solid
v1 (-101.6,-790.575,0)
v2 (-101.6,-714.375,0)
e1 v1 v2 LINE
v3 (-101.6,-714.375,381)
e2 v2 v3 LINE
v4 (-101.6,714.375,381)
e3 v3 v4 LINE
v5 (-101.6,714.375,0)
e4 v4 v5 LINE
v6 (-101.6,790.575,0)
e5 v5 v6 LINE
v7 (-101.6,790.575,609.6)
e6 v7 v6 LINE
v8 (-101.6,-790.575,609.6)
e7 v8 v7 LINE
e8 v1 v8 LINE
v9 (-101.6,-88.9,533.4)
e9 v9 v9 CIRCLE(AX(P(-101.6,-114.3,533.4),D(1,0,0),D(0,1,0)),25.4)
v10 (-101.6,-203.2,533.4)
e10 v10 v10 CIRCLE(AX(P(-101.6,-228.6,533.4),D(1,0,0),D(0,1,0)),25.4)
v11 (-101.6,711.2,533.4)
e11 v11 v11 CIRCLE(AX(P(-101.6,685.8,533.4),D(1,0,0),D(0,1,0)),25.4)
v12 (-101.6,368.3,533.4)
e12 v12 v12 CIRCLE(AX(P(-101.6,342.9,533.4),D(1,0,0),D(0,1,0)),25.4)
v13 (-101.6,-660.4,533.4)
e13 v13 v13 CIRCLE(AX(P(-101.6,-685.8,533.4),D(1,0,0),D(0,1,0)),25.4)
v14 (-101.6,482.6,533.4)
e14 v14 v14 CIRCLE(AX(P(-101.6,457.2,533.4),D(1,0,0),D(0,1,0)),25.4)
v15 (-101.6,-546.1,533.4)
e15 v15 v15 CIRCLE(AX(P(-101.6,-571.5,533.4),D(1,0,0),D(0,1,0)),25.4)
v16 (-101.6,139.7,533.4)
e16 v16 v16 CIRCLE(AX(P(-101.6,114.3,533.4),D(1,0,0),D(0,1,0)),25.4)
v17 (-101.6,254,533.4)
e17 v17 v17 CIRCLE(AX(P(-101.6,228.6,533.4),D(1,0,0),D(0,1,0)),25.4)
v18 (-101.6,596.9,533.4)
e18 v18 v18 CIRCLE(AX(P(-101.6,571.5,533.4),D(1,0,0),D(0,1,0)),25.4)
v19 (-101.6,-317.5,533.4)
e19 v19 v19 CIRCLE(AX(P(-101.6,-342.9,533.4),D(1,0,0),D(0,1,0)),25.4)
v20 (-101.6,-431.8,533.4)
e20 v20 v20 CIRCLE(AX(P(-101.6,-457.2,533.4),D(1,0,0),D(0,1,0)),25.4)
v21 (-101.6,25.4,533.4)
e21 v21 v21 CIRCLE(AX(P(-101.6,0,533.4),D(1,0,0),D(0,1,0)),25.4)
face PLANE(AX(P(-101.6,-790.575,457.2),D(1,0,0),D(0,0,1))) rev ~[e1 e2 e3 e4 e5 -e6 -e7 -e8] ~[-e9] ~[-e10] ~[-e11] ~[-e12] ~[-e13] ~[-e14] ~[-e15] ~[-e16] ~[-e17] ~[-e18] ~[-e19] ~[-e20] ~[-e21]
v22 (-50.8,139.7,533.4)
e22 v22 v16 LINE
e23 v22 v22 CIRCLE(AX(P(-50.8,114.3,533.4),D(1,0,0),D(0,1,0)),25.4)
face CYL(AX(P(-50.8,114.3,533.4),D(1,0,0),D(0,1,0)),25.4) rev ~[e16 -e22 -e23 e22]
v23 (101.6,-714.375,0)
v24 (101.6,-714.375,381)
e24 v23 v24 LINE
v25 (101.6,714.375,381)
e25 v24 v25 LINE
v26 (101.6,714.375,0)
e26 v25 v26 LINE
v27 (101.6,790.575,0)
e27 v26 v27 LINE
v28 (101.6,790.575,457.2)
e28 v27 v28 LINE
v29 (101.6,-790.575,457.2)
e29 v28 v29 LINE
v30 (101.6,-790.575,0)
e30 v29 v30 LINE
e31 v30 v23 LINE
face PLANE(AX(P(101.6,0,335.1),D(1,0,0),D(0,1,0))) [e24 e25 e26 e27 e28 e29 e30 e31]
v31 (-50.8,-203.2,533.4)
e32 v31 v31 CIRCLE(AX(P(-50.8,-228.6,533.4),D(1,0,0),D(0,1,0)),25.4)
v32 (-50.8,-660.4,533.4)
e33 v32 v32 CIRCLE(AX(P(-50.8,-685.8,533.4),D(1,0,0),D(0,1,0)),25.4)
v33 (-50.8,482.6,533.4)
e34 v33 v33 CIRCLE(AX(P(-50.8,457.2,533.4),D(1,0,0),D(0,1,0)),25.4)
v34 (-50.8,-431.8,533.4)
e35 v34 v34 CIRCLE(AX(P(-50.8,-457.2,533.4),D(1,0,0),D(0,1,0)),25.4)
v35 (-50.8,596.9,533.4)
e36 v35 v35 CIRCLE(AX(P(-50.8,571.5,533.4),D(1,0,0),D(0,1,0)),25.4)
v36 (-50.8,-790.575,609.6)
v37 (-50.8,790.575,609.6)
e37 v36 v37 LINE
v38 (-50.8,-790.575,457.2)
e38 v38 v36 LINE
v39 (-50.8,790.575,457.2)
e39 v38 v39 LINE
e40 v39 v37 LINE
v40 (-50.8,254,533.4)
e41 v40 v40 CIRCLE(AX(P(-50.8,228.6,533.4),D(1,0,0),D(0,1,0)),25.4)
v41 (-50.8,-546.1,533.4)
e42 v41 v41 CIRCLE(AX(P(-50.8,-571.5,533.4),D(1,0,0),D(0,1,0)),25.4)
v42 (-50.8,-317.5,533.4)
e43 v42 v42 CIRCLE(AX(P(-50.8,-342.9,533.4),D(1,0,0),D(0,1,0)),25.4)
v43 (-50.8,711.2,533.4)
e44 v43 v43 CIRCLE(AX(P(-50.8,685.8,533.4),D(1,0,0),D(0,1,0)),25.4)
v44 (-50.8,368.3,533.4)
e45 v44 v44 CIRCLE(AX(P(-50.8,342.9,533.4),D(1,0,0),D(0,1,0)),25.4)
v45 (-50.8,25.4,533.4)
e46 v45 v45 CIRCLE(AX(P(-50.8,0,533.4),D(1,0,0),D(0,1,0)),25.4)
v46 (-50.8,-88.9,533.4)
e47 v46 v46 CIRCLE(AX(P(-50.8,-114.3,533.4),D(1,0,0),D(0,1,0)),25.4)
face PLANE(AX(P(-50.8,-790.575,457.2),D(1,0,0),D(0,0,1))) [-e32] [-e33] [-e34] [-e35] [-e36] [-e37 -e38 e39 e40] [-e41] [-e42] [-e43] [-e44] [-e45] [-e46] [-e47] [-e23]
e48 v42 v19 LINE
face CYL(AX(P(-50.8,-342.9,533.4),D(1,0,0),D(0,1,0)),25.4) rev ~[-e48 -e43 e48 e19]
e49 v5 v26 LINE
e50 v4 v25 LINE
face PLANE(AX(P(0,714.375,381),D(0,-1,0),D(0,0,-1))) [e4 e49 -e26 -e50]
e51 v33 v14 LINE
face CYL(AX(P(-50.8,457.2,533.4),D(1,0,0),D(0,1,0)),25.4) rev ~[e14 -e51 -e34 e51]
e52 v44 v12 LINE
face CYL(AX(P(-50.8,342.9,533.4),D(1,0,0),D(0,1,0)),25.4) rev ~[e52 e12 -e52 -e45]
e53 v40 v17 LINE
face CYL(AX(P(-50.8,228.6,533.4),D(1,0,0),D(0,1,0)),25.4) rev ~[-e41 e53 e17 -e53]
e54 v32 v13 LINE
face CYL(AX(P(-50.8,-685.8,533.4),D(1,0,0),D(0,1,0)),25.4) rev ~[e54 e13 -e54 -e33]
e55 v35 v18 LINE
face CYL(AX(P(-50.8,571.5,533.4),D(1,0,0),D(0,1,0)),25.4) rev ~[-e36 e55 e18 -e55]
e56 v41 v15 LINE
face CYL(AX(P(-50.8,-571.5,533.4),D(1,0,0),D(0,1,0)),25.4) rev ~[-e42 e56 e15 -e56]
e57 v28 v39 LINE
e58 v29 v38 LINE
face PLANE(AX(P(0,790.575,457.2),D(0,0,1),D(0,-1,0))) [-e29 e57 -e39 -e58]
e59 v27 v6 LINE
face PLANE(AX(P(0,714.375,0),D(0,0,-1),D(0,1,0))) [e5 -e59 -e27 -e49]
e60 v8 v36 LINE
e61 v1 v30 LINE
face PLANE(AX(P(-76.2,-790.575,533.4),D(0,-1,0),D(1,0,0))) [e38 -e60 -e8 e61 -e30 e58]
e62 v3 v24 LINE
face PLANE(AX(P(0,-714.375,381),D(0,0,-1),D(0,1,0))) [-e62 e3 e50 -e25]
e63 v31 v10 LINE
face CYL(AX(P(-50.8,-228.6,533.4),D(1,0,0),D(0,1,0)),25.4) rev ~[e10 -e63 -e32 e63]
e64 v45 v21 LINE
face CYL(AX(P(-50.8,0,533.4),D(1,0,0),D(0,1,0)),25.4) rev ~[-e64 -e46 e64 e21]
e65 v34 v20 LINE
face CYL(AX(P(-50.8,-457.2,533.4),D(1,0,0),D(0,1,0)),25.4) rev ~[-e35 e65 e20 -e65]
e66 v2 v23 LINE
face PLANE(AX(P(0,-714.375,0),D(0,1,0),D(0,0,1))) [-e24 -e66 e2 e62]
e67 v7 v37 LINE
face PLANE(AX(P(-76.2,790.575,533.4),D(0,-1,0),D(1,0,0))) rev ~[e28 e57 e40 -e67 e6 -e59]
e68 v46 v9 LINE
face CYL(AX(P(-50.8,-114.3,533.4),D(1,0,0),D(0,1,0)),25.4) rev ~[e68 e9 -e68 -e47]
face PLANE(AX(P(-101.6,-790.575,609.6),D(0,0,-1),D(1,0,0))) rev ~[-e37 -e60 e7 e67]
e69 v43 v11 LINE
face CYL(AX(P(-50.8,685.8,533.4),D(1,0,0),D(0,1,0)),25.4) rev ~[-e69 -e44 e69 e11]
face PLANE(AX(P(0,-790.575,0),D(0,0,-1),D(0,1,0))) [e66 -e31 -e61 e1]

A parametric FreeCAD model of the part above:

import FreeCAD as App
import Part
import Sketcher
Q = App.Units.Quantity


def add_polygon(sketch, points):
    """Adds a closed chain of lines whose ends are joined by coincident constraints."""
    first, n = sketch.GeometryCount, len(points)
    for a, b in zip(points, points[1:] + points[:1]):
        sketch.addGeometry(Part.LineSegment(App.Vector(*a, 0), App.Vector(*b, 0)), False)
    for i in range(n):
        sketch.addConstraint(Sketcher.Constraint("Coincident", first + i, 2, first + (i + 1) % n, 1))

doc = App.newDocument("Part")
body = doc.addObject("PartDesign::Body", "Body")

sketch1 = doc.addObject("Sketcher::SketchObject", "Sketch")
body.addObject(sketch1)
sketch1.AttachmentSupport = (doc.YZ_Plane, [""])
sketch1.MapMode = "FlatFace"
add_polygon(sketch1, [(-791, 457), (-791, 0), (-714, 0), (-714, 381), (714, 381), (714, 0), (791, 0), (791, 457)])
sketch1.addConstraint([
    Sketcher.Constraint("Vertical", 0),
    Sketcher.Constraint("Horizontal", 1),
    Sketcher.Constraint("Vertical", 2),
    Sketcher.Constraint("Horizontal", 3),
    Sketcher.Constraint("Vertical", 4),
    Sketcher.Constraint("Horizontal", 5),
    Sketcher.Constraint("Vertical", 6),
    Sketcher.Constraint("Horizontal", 7),
    Sketcher.Constraint("Symmetric", 1, 2, 4, 2, -1, 1),
    Sketcher.Constraint("Symmetric", 0, 2, 5, 2, -2),
    Sketcher.Constraint("DistanceX", 1, 1, 1, 2, Q("3 in")),
    Sketcher.Constraint("DistanceY", 0, 2, 0, 1, Q("18 in")),
    Sketcher.Constraint("DistanceY", 2, 1, 2, 2, Q("15 in")),
    Sketcher.Constraint("DistanceX", 3, 1, 3, 2, Q("56.25 in")),
])
pad1 = doc.addObject("PartDesign::Pad", "Pad")
body.addObject(pad1)
pad1.Profile = sketch1
pad1.Length = Q("8 in")
pad1.Midplane = True

sketch2 = doc.addObject("Sketcher::SketchObject", "Sketch001")
body.addObject(sketch2)
sketch2.AttachmentSupport = (doc.XZ_Plane, [""])
sketch2.MapMode = "FlatFace"
sketch2.AttachmentOffset = App.Placement(App.Vector(0, 0, 31.125 * 25.4), App.Rotation())
add_polygon(sketch2, [(-102, 610), (-102, 457), (-51, 457), (-51, 610)])
sketch2.addConstraint([
    Sketcher.Constraint("Vertical", 0),
    Sketcher.Constraint("Horizontal", 1),
    Sketcher.Constraint("Vertical", 2),
    Sketcher.Constraint("Horizontal", 3),
    Sketcher.Constraint("DistanceX", 1, 1, 1, 2, Q("2 in")),
    Sketcher.Constraint("DistanceY", 0, 2, 0, 1, Q("6 in")),
    Sketcher.Constraint("DistanceX", 0, 2, -1, 1, Q("4 in")),
    Sketcher.Constraint("DistanceY", -1, 1, 0, 2, Q("18 in")),
])
pad2 = doc.addObject("PartDesign::Pad", "Pad001")
body.addObject(pad2)
pad2.Profile = sketch2
pad2.Length = Q("62.25 in")
pad2.Reversed = True

sketch3 = doc.addObject("Sketcher::SketchObject", "Sketch002")
body.addObject(sketch3)
sketch3.AttachmentSupport = (doc.YZ_Plane, [""])
sketch3.MapMode = "FlatFace"
sketch3.AttachmentOffset = App.Placement(App.Vector(0, 0, -2 * 25.4), App.Rotation())
sketch3.addGeometry([
    Part.Circle(App.Vector(-457, 533, 0), App.Vector(0, 0, 1), 25),
    Part.Circle(App.Vector(-343, 533, 0), App.Vector(0, 0, 1), 25),
    Part.Circle(App.Vector(-229, 533, 0), App.Vector(0, 0, 1), 25),
    Part.Circle(App.Vector(-114, 533, 0), App.Vector(0, 0, 1), 25),
    Part.Circle(App.Vector(0, 533, 0), App.Vector(0, 0, 1), 25),
    Part.Circle(App.Vector(-686, 533, 0), App.Vector(0, 0, 1), 25),
    Part.Circle(App.Vector(-572, 533, 0), App.Vector(0, 0, 1), 25),
    Part.Circle(App.Vector(114, 533, 0), App.Vector(0, 0, 1), 25),
    Part.Circle(App.Vector(229, 533, 0), App.Vector(0, 0, 1), 25),
    Part.Circle(App.Vector(343, 533, 0), App.Vector(0, 0, 1), 25),
    Part.Circle(App.Vector(457, 533, 0), App.Vector(0, 0, 1), 25),
    Part.Circle(App.Vector(572, 533, 0), App.Vector(0, 0, 1), 25),
    Part.Circle(App.Vector(686, 533, 0), App.Vector(0, 0, 1), 25),
], False)
sketch3.addConstraint([
    Sketcher.Constraint("Equal", 0, 1),
    Sketcher.Constraint("Equal", 1, 2),
    Sketcher.Constraint("Equal", 2, 3),
    Sketcher.Constraint("Equal", 3, 4),
    Sketcher.Constraint("Equal", 4, 5),
    Sketcher.Constraint("Equal", 5, 6),
    Sketcher.Constraint("Equal", 6, 7),
    Sketcher.Constraint("Equal", 7, 8),
    Sketcher.Constraint("Equal", 8, 9),
    Sketcher.Constraint("Equal", 9, 10),
    Sketcher.Constraint("Equal", 10, 11),
    Sketcher.Constraint("Equal", 11, 12),
    Sketcher.Constraint("Symmetric", 3, 3, 7, 3, -2),
    Sketcher.Constraint("Symmetric", 2, 3, 8, 3, -2),
    Sketcher.Constraint("Symmetric", 1, 3, 9, 3, -2),
    Sketcher.Constraint("Symmetric", 0, 3, 10, 3, -2),
    Sketcher.Constraint("Symmetric", 6, 3, 11, 3, -2),
    Sketcher.Constraint("Symmetric", 5, 3, 12, 3, -2),
    Sketcher.Constraint("PointOnObject", 4, 3, -2),
    Sketcher.Constraint("Horizontal", 0, 3, 1, 3),
    Sketcher.Constraint("Horizontal", 1, 3, 2, 3),
    Sketcher.Constraint("Horizontal", 2, 3, 3, 3),
    Sketcher.Constraint("Horizontal", 3, 3, 4, 3),
    Sketcher.Constraint("Horizontal", 4, 3, 5, 3),
    Sketcher.Constraint("Horizontal", 5, 3, 6, 3),
    Sketcher.Constraint("Diameter", 0, Q("2 in")),
    Sketcher.Constraint("DistanceX", 0, 3, -1, 1, Q("18 in")),
    Sketcher.Constraint("DistanceY", -1, 1, 0, 3, Q("21 in")),
    Sketcher.Constraint("DistanceX", 2, 3, -1, 1, Q("9 in")),
    Sketcher.Constraint("DistanceX", 5, 3, -1, 1, Q("27 in")),
    Sketcher.Constraint("DistanceX", 1, 3, 3, 3, Q("9 in")),
    Sketcher.Constraint("DistanceX", 6, 3, 1, 3, Q("9 in")),
    Sketcher.Constraint("DistanceX", 3, 3, 7, 3, Q("9 in")),
])
pocket1 = doc.addObject("PartDesign::Pocket", "Pocket")
body.addObject(pocket1)
pocket1.Profile = sketch3
pocket1.Type = "ThroughAll"

doc.recompute()
